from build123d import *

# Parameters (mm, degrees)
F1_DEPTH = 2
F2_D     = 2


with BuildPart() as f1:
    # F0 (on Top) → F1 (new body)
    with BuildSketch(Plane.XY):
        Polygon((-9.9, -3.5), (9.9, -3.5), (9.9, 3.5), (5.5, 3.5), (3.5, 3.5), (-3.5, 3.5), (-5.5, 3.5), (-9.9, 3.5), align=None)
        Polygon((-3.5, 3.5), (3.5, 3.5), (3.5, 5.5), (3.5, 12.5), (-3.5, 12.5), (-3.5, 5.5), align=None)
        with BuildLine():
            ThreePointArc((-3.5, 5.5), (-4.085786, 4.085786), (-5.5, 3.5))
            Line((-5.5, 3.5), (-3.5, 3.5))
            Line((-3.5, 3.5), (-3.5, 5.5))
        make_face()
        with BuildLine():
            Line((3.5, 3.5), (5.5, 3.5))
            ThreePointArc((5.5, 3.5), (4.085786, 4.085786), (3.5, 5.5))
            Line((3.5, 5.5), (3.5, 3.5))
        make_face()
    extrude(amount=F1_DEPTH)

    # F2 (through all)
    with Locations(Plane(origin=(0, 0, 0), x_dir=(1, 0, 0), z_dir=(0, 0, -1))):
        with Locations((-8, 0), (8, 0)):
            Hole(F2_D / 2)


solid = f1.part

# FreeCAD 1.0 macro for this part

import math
import FreeCAD as App
import Part
import Sketcher
from FreeCAD import Vector

doc = App.newDocument("Part")
body = doc.addObject("PartDesign::Body", "Body")

sketch1 = doc.addObject("Sketcher::SketchObject", "Sketch")
body.addObject(sketch1)
sketch1.AttachmentSupport = (doc.XY_Plane, [""])
sketch1.MapMode = "FlatFace"
sketch1.addGeometry([
    Part.LineSegment(Vector(-9.9, -3.5, 0), Vector(9.9, -3.5, 0)),
    Part.LineSegment(Vector(9.9, -3.5, 0), Vector(9.9, 3.5, 0)),
    Part.LineSegment(Vector(9.9, 3.5, 0), Vector(5.5, 3.5, 0)),
    Part.ArcOfCircle(Part.Circle(Vector(5.5, 5.5, 0), Vector(0, 0, 1), 2), math.radians(180), math.radians(270)),
    Part.LineSegment(Vector(3.5, 5.5, 0), Vector(3.5, 12.5, 0)),
    Part.LineSegment(Vector(3.5, 12.5, 0), Vector(-3.5, 12.5, 0)),
    Part.LineSegment(Vector(-3.5, 12.5, 0), Vector(-3.5, 5.5, 0)),
    Part.ArcOfCircle(Part.Circle(Vector(-5.5, 5.5, 0), Vector(0, 0, 1), 2), math.radians(-90), math.radians(0)),
    Part.LineSegment(Vector(-5.5, 3.5, 0), Vector(-9.9, 3.5, 0)),
    Part.LineSegment(Vector(-9.9, 3.5, 0), Vector(-9.9, -3.5, 0)),
], False)
sketch1.addConstraint([
    Sketcher.Constraint("Coincident", 0, 2, 1, 1),
    Sketcher.Constraint("Coincident", 1, 2, 2, 1),
    Sketcher.Constraint("Tangent", 2, 2, 3, 2),
    Sketcher.Constraint("Tangent", 3, 1, 4, 1),
    Sketcher.Constraint("Coincident", 4, 2, 5, 1),
    Sketcher.Constraint("Coincident", 5, 2, 6, 1),
    Sketcher.Constraint("Tangent", 6, 2, 7, 2),
    Sketcher.Constraint("Tangent", 7, 1, 8, 1),
    Sketcher.Constraint("Coincident", 8, 2, 9, 1),
    Sketcher.Constraint("Coincident", 9, 2, 0, 1),
    Sketcher.Constraint("Horizontal", 0),
    Sketcher.Constraint("Vertical", 1),
    Sketcher.Constraint("Horizontal", 2),
    Sketcher.Constraint("Vertical", 4),
    Sketcher.Constraint("Horizontal", 5),
    Sketcher.Constraint("Vertical", 6),
    Sketcher.Constraint("Horizontal", 8),
    Sketcher.Constraint("Vertical", 9),
    Sketcher.Constraint("Equal", 3, 7),
    Sketcher.Constraint("Symmetric", 0, 2, 8, 2, -1, 1),
    Sketcher.Constraint("Symmetric", 3, 3, 7, 3, -2),
    Sketcher.Constraint("Equal", 5, 1),
    Sketcher.Constraint("Equal", 1, 4),
    Sketcher.Constraint("Radius", 3, 1.999999),
    Sketcher.Constraint("DistanceX", 5, 2, 5, 1, 7.0),
    Sketcher.Constraint("DistanceX", 0, 1, 0, 2, 19.8),
])
pad1 = doc.addObject("PartDesign::Pad", "Pad")
body.addObject(pad1)
pad1.Profile = sketch1
pad1.Length = 2

sketch2 = doc.addObject("Sketcher::SketchObject", "Sketch001")
body.addObject(sketch2)
sketch2.AttachmentSupport = (doc.XY_Plane, [""])
sketch2.MapMode = "FlatFace"
sketch2.addGeometry([
    Part.Circle(Vector(-8, 0, 0), Vector(0, 0, 1), 1),
    Part.Circle(Vector(8, 0, 0), Vector(0, 0, 1), 1),
], False)
sketch2.addConstraint([
    Sketcher.Constraint("Equal", 0, 1),
    Sketcher.Constraint("Symmetric", 0, 3, 1, 3, -1, 1),
    Sketcher.Constraint("PointOnObject", 0, 3, -1),
    Sketcher.Constraint("Diameter", 0, 2.0),
    Sketcher.Constraint("DistanceX", 0, 3, -1, 1, 8.0),
])
doc.recompute()
hole = doc.addObject("PartDesign::Hole", "Hole")
body.addObject(hole)
hole.Profile = sketch2
hole.ThreadType = "None"
hole.Diameter = 2
hole.DepthType = "ThroughAll"
hole.Reversed = True

doc.recompute()
